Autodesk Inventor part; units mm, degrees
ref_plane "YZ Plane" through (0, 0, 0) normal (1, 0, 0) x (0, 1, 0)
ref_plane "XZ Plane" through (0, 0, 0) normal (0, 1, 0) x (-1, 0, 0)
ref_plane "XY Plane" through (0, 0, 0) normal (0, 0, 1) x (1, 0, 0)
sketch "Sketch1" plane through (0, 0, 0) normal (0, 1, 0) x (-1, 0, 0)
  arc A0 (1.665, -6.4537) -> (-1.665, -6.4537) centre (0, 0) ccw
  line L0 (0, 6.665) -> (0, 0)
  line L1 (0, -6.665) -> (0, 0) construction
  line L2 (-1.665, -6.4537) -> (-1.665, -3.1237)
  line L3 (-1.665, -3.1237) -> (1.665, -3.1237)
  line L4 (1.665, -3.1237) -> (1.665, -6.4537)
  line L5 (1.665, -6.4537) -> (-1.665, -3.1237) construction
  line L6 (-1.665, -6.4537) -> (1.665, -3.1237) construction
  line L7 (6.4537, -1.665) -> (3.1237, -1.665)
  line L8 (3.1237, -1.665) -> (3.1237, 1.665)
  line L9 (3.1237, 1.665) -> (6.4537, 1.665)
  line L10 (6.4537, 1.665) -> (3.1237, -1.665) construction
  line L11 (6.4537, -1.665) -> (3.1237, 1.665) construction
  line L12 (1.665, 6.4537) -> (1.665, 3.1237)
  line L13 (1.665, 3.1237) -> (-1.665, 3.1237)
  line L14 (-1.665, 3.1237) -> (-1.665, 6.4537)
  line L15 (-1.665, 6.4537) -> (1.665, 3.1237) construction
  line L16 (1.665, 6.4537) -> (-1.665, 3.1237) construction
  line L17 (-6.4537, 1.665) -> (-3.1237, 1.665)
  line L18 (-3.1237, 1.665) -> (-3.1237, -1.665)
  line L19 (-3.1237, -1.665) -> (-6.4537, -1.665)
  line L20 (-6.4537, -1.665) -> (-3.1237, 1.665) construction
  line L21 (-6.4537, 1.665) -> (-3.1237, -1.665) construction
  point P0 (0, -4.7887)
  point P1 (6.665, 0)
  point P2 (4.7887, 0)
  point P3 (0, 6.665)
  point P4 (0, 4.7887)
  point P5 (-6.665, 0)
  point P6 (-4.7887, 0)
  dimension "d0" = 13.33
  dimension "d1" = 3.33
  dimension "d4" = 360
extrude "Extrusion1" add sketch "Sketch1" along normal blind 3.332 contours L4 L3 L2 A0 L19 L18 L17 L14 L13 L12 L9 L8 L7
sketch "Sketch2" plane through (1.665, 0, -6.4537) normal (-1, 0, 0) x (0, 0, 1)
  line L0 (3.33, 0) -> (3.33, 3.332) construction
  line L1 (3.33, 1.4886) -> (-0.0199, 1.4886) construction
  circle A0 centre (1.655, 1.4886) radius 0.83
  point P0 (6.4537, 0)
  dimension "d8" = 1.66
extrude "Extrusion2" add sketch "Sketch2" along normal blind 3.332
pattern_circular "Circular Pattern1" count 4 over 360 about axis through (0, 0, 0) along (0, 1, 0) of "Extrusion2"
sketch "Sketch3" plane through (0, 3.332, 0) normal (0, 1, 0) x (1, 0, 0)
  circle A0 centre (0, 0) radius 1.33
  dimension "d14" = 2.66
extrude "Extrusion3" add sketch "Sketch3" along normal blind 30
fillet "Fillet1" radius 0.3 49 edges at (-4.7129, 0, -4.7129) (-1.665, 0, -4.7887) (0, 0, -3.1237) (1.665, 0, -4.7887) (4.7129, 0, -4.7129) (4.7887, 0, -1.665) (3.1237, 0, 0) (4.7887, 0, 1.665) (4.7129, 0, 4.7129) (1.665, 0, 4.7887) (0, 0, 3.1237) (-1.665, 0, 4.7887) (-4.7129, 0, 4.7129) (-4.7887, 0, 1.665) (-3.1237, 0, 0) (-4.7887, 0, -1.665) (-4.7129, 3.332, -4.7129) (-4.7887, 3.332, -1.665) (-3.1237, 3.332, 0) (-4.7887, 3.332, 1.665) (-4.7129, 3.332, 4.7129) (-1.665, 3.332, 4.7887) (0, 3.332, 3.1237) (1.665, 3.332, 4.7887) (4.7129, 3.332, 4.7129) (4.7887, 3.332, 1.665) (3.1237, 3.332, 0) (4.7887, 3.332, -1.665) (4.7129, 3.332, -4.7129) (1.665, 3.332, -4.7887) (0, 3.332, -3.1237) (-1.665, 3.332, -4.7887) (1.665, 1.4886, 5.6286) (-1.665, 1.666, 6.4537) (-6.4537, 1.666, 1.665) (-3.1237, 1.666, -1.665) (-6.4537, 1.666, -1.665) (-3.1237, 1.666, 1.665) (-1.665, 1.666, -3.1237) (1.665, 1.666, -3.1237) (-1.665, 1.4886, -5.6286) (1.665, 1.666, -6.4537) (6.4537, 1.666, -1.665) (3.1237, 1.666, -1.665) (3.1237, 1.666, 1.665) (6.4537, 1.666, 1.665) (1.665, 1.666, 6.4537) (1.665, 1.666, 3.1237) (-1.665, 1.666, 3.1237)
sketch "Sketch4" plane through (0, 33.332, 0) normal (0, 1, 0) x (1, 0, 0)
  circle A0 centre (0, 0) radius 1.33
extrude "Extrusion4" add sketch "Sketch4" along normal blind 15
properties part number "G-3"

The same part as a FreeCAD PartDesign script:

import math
import FreeCAD as App
import Part
import Sketcher
Q = App.Units.Quantity


def edges_at(feature, points):
    """Names of the edges that pass closest to the given points."""
    edges = feature.Shape.Edges
    near = lambda p: min(range(len(edges)), key=lambda i: edges[i].distToShape(Part.Vertex(*p))[0])
    return sorted({f"Edge{near(p) + 1}" for p in points})

doc = App.newDocument("Part")
params = doc.addObject("Spreadsheet::Sheet", "Params")
for row, (alias, value) in enumerate([
    ("sketch1_width", "3.33 mm"),
    ("pad1_length", "3.332 mm"),
    ("sketch2_diameter", "1.66 mm"),
    ("pad2_length", "3.332 mm"),
    ("sketch3_diameter", "2.66 mm"),
    ("pad3_length", "30 mm"),
    ("fillet_radius", "0.3 mm"),
    ("sketch4_diameter", "2.66 mm"),
    ("pad4_length", "15 mm"),
], start=1):
    params.set(f"A{row}", alias)
    params.set(f"B{row}", "=" + value)
    params.setAlias(f"B{row}", alias)

body = doc.addObject("PartDesign::Body", "Body")

# Sketch on XZ plane
sketch1 = body.newObject("Sketcher::SketchObject", "Sketch")
sketch1.AttachmentSupport = (doc.getObject("XZ_Plane"), [""])
sketch1.MapMode = "FlatFace"
sketch1.addGeometry([
    Part.LineSegment(App.Vector(-1.7, -3.1, 0), App.Vector(-1.7, -6.5, 0)),  # 0
    Part.ArcOfCircle(Part.Circle(App.Vector(0, 0, 0), App.Vector(0, 0, 1), 6.7), math.radians(-166), math.radians(-104)),  # 1
    Part.LineSegment(App.Vector(-6.5, -1.7, 0), App.Vector(-3.1, -1.7, 0)),  # 2
    Part.LineSegment(App.Vector(-3.1, -1.7, 0), App.Vector(-3.1, 1.7, 0)),  # 3
    Part.LineSegment(App.Vector(-3.1, 1.7, 0), App.Vector(-6.5, 1.7, 0)),  # 4
    Part.ArcOfCircle(Part.Circle(App.Vector(0, 0, 0), App.Vector(0, 0, 1), 6.7), math.radians(104), math.radians(166)),  # 5
    Part.LineSegment(App.Vector(-1.7, 6.5, 0), App.Vector(-1.7, 3.1, 0)),  # 6
    Part.LineSegment(App.Vector(-1.7, 3.1, 0), App.Vector(1.7, 3.1, 0)),  # 7
    Part.LineSegment(App.Vector(1.7, 3.1, 0), App.Vector(1.7, 6.5, 0)),  # 8
    Part.ArcOfCircle(Part.Circle(App.Vector(0, 0, 0), App.Vector(0, 0, 1), 6.7), math.radians(14), math.radians(76)),  # 9
    Part.LineSegment(App.Vector(6.5, 1.7, 0), App.Vector(3.1, 1.7, 0)),  # 10
    Part.LineSegment(App.Vector(3.1, 1.7, 0), App.Vector(3.1, -1.7, 0)),  # 11
    Part.LineSegment(App.Vector(3.1, -1.7, 0), App.Vector(6.5, -1.7, 0)),  # 12
    Part.ArcOfCircle(Part.Circle(App.Vector(0, 0, 0), App.Vector(0, 0, 1), 6.7), math.radians(-76), math.radians(-14)),  # 13
    Part.LineSegment(App.Vector(1.7, -6.5, 0), App.Vector(1.7, -3.1, 0)),  # 14
    Part.LineSegment(App.Vector(1.7, -3.1, 0), App.Vector(-1.7, -3.1, 0)),  # 15
], False)
sketch1.addConstraint([
    Sketcher.Constraint("Coincident", 0, 2, 1, 2),
    Sketcher.Constraint("Coincident", 1, 1, 2, 1),
    Sketcher.Constraint("Coincident", 2, 2, 3, 1),
    Sketcher.Constraint("Coincident", 3, 2, 4, 1),
    Sketcher.Constraint("Coincident", 4, 2, 5, 2),
    Sketcher.Constraint("Coincident", 5, 1, 6, 1),
    Sketcher.Constraint("Coincident", 6, 2, 7, 1),
    Sketcher.Constraint("Coincident", 7, 2, 8, 1),
    Sketcher.Constraint("Coincident", 8, 2, 9, 2),
    Sketcher.Constraint("Coincident", 9, 1, 10, 1),
    Sketcher.Constraint("Coincident", 10, 2, 11, 1),
    Sketcher.Constraint("Coincident", 11, 2, 12, 1),
    Sketcher.Constraint("Coincident", 12, 2, 13, 2),
    Sketcher.Constraint("Coincident", 13, 1, 14, 1),
    Sketcher.Constraint("Coincident", 14, 2, 15, 1),
    Sketcher.Constraint("Coincident", 15, 2, 0, 1),
    Sketcher.Constraint("Vertical", 0),
    Sketcher.Constraint("Horizontal", 2),
    Sketcher.Constraint("Vertical", 3),
    Sketcher.Constraint("Horizontal", 4),
    Sketcher.Constraint("Vertical", 6),
    Sketcher.Constraint("Horizontal", 7),
    Sketcher.Constraint("Vertical", 8),
    Sketcher.Constraint("Horizontal", 10),
    Sketcher.Constraint("Vertical", 11),
    Sketcher.Constraint("Horizontal", 12),
    Sketcher.Constraint("Vertical", 14),
    Sketcher.Constraint("Horizontal", 15),
    Sketcher.Constraint("Coincident", 1, 3, -1, 1),
    Sketcher.Constraint("Coincident", 5, 3, -1, 1),
    Sketcher.Constraint("Coincident", 9, 3, -1, 1),
    Sketcher.Constraint("Coincident", 13, 3, -1, 1),
    Sketcher.Constraint("Equal", 1, 5),
    Sketcher.Constraint("Equal", 5, 9),
    Sketcher.Constraint("Equal", 9, 13),
    Sketcher.Constraint("Symmetric", 2, 2, 10, 2, -1, 1),
    Sketcher.Constraint("Symmetric", 6, 2, 14, 2, -1, 1),
    Sketcher.Constraint("Horizontal", 5, 1, 8, 2),
    Sketcher.Constraint("Horizontal", 4, 2, 9, 1),
    Sketcher.Constraint("Horizontal", 2, 2, 11, 2),
    Sketcher.Constraint("Horizontal", 0, 2, 13, 1),
    Sketcher.Constraint("Equal", 4, 7),
    Sketcher.Constraint("Equal", 15, 0),
    Sketcher.Constraint("Equal", 0, 3),
    Sketcher.Constraint("Radius", 1, Q("6.665 mm")),
    Sketcher.Constraint("DistanceX", 2, 1, 2, 2, Q("3.33 mm")),
])
sketch1.setExpression("Constraints[45]", "Params.sketch1_width")
pad1 = body.newObject("PartDesign::Pad", "Pad")
pad1.Profile = sketch1
pad1.setExpression("Length", "Params.pad1_length")
pad1.Reversed = True

# Sketch on YZ plane
sketch2 = body.newObject("Sketcher::SketchObject", "Sketch001")
sketch2.AttachmentSupport = (doc.getObject("YZ_Plane"), [""])
sketch2.MapMode = "FlatFace"
sketch2.AttachmentOffset = App.Placement(App.Vector(0, 0, 1.665), App.Rotation())
sketch2.addGeometry(Part.Circle(App.Vector(1.5, -4.8, 0), App.Vector(0, 0, 1), 0.8), False)
sketch2.addConstraint([
    Sketcher.Constraint("Diameter", 0, Q("1.66 mm")),
    Sketcher.Constraint("DistanceX", -1, 1, 0, 3, Q("1.4886 mm")),
    Sketcher.Constraint("DistanceY", 0, 3, -1, 1, Q("4.7987 mm")),
])
sketch2.setExpression("Constraints[0]", "Params.sketch2_diameter")
pad2 = body.newObject("PartDesign::Pad", "Pad001")
pad2.Profile = sketch2
pad2.setExpression("Length", "Params.pad2_length")
pad2.Reversed = True
doc.recompute()

polarpattern = body.newObject("PartDesign::PolarPattern", "PolarPattern")
polarpattern.Originals = [pad2]
polarpattern.Axis = (doc.getObject("Y_Axis"), [""])
polarpattern.Angle = 360
polarpattern.Occurrences = 4
body.Tip = polarpattern

# Sketch on XZ plane
sketch3 = body.newObject("Sketcher::SketchObject", "Sketch002")
sketch3.AttachmentSupport = (doc.getObject("XZ_Plane"), [""])
sketch3.MapMode = "FlatFace"
sketch3.AttachmentOffset = App.Placement(App.Vector(0, 0, -3.332), App.Rotation())
sketch3.addGeometry(Part.Circle(App.Vector(0, 0, 0), App.Vector(0, 0, 1), 1.3), False)
sketch3.addConstraint([
    Sketcher.Constraint("Coincident", 0, 3, -1, 1),
    Sketcher.Constraint("Diameter", 0, Q("2.66 mm")),
])
sketch3.setExpression("Constraints[1]", "Params.sketch3_diameter")
pad3 = body.newObject("PartDesign::Pad", "Pad002")
pad3.Profile = sketch3
pad3.setExpression("Length", "Params.pad3_length")
pad3.Reversed = True
doc.recompute()

fillet = body.newObject("PartDesign::Fillet", "Fillet")
fillet.Base = (pad3, edges_at(pad3, [
    (-4.713, 0, -4.713),
    (-1.665, 0, -4.789),
    (0, 0, -3.124),
    (1.665, 0, -4.789),
    (4.713, 0, -4.713),
    (4.789, 0, -1.665),
    (3.124, 0, 0),
    (4.789, 0, 1.665),
    (4.713, 0, 4.713),
    (1.665, 0, 4.789),
    (0, 0, 3.124),
    (-1.665, 0, 4.789),
    (-4.713, 0, 4.713),
    (-4.789, 0, 1.665),
    (-3.124, 0, 0),
    (-4.789, 0, -1.665),
    (-4.713, 3.332, -4.713),
    (-4.789, 3.332, -1.665),
    (-3.124, 3.332, 0),
    (-4.789, 3.332, 1.665),
    (-4.713, 3.332, 4.713),
    (-1.665, 3.332, 4.789),
    (0, 3.332, 3.124),
    (1.665, 3.332, 4.789),
    (4.713, 3.332, 4.713),
    (4.789, 3.332, 1.665),
    (3.124, 3.332, 0),
    (4.789, 3.332, -1.665),
    (4.713, 3.332, -4.713),
    (1.665, 3.332, -4.789),
    (0, 3.332, -3.124),
    (-1.665, 3.332, -4.789),
    (1.665, 1.489, 5.629),
    (-1.665, 1.666, 6.454),
    (-6.454, 1.666, 1.665),
    (-3.124, 1.666, -1.665),
    (-6.454, 1.666, -1.665),
    (-3.124, 1.666, 1.665),
    (-1.665, 1.666, -3.124),
    (1.665, 1.666, -3.124),
    (-1.665, 1.489, -5.629),
    (1.665, 1.666, -6.454),
    (6.454, 1.666, -1.665),
    (3.124, 1.666, -1.665),
    (3.124, 1.666, 1.665),
    (6.454, 1.666, 1.665),
    (1.665, 1.666, 6.454),
    (1.665, 1.666, 3.124),
    (-1.665, 1.666, 3.124),
]))
fillet.setExpression("Radius", "Params.fillet_radius")

# Sketch on XZ plane
sketch4 = body.newObject("Sketcher::SketchObject", "Sketch003")
sketch4.AttachmentSupport = (doc.getObject("XZ_Plane"), [""])
sketch4.MapMode = "FlatFace"
sketch4.AttachmentOffset = App.Placement(App.Vector(0, 0, -33.332), App.Rotation())
sketch4.addGeometry(Part.Circle(App.Vector(0, 0, 0), App.Vector(0, 0, 1), 1.3), False)
sketch4.addConstraint([
    Sketcher.Constraint("Coincident", 0, 3, -1, 1),
    Sketcher.Constraint("Diameter", 0, Q("2.66 mm")),
])
sketch4.setExpression("Constraints[1]", "Params.sketch4_diameter")
pad4 = body.newObject("PartDesign::Pad", "Pad003")
pad4.Profile = sketch4
pad4.setExpression("Length", "Params.pad4_length")
pad4.Reversed = True

doc.recompute()
